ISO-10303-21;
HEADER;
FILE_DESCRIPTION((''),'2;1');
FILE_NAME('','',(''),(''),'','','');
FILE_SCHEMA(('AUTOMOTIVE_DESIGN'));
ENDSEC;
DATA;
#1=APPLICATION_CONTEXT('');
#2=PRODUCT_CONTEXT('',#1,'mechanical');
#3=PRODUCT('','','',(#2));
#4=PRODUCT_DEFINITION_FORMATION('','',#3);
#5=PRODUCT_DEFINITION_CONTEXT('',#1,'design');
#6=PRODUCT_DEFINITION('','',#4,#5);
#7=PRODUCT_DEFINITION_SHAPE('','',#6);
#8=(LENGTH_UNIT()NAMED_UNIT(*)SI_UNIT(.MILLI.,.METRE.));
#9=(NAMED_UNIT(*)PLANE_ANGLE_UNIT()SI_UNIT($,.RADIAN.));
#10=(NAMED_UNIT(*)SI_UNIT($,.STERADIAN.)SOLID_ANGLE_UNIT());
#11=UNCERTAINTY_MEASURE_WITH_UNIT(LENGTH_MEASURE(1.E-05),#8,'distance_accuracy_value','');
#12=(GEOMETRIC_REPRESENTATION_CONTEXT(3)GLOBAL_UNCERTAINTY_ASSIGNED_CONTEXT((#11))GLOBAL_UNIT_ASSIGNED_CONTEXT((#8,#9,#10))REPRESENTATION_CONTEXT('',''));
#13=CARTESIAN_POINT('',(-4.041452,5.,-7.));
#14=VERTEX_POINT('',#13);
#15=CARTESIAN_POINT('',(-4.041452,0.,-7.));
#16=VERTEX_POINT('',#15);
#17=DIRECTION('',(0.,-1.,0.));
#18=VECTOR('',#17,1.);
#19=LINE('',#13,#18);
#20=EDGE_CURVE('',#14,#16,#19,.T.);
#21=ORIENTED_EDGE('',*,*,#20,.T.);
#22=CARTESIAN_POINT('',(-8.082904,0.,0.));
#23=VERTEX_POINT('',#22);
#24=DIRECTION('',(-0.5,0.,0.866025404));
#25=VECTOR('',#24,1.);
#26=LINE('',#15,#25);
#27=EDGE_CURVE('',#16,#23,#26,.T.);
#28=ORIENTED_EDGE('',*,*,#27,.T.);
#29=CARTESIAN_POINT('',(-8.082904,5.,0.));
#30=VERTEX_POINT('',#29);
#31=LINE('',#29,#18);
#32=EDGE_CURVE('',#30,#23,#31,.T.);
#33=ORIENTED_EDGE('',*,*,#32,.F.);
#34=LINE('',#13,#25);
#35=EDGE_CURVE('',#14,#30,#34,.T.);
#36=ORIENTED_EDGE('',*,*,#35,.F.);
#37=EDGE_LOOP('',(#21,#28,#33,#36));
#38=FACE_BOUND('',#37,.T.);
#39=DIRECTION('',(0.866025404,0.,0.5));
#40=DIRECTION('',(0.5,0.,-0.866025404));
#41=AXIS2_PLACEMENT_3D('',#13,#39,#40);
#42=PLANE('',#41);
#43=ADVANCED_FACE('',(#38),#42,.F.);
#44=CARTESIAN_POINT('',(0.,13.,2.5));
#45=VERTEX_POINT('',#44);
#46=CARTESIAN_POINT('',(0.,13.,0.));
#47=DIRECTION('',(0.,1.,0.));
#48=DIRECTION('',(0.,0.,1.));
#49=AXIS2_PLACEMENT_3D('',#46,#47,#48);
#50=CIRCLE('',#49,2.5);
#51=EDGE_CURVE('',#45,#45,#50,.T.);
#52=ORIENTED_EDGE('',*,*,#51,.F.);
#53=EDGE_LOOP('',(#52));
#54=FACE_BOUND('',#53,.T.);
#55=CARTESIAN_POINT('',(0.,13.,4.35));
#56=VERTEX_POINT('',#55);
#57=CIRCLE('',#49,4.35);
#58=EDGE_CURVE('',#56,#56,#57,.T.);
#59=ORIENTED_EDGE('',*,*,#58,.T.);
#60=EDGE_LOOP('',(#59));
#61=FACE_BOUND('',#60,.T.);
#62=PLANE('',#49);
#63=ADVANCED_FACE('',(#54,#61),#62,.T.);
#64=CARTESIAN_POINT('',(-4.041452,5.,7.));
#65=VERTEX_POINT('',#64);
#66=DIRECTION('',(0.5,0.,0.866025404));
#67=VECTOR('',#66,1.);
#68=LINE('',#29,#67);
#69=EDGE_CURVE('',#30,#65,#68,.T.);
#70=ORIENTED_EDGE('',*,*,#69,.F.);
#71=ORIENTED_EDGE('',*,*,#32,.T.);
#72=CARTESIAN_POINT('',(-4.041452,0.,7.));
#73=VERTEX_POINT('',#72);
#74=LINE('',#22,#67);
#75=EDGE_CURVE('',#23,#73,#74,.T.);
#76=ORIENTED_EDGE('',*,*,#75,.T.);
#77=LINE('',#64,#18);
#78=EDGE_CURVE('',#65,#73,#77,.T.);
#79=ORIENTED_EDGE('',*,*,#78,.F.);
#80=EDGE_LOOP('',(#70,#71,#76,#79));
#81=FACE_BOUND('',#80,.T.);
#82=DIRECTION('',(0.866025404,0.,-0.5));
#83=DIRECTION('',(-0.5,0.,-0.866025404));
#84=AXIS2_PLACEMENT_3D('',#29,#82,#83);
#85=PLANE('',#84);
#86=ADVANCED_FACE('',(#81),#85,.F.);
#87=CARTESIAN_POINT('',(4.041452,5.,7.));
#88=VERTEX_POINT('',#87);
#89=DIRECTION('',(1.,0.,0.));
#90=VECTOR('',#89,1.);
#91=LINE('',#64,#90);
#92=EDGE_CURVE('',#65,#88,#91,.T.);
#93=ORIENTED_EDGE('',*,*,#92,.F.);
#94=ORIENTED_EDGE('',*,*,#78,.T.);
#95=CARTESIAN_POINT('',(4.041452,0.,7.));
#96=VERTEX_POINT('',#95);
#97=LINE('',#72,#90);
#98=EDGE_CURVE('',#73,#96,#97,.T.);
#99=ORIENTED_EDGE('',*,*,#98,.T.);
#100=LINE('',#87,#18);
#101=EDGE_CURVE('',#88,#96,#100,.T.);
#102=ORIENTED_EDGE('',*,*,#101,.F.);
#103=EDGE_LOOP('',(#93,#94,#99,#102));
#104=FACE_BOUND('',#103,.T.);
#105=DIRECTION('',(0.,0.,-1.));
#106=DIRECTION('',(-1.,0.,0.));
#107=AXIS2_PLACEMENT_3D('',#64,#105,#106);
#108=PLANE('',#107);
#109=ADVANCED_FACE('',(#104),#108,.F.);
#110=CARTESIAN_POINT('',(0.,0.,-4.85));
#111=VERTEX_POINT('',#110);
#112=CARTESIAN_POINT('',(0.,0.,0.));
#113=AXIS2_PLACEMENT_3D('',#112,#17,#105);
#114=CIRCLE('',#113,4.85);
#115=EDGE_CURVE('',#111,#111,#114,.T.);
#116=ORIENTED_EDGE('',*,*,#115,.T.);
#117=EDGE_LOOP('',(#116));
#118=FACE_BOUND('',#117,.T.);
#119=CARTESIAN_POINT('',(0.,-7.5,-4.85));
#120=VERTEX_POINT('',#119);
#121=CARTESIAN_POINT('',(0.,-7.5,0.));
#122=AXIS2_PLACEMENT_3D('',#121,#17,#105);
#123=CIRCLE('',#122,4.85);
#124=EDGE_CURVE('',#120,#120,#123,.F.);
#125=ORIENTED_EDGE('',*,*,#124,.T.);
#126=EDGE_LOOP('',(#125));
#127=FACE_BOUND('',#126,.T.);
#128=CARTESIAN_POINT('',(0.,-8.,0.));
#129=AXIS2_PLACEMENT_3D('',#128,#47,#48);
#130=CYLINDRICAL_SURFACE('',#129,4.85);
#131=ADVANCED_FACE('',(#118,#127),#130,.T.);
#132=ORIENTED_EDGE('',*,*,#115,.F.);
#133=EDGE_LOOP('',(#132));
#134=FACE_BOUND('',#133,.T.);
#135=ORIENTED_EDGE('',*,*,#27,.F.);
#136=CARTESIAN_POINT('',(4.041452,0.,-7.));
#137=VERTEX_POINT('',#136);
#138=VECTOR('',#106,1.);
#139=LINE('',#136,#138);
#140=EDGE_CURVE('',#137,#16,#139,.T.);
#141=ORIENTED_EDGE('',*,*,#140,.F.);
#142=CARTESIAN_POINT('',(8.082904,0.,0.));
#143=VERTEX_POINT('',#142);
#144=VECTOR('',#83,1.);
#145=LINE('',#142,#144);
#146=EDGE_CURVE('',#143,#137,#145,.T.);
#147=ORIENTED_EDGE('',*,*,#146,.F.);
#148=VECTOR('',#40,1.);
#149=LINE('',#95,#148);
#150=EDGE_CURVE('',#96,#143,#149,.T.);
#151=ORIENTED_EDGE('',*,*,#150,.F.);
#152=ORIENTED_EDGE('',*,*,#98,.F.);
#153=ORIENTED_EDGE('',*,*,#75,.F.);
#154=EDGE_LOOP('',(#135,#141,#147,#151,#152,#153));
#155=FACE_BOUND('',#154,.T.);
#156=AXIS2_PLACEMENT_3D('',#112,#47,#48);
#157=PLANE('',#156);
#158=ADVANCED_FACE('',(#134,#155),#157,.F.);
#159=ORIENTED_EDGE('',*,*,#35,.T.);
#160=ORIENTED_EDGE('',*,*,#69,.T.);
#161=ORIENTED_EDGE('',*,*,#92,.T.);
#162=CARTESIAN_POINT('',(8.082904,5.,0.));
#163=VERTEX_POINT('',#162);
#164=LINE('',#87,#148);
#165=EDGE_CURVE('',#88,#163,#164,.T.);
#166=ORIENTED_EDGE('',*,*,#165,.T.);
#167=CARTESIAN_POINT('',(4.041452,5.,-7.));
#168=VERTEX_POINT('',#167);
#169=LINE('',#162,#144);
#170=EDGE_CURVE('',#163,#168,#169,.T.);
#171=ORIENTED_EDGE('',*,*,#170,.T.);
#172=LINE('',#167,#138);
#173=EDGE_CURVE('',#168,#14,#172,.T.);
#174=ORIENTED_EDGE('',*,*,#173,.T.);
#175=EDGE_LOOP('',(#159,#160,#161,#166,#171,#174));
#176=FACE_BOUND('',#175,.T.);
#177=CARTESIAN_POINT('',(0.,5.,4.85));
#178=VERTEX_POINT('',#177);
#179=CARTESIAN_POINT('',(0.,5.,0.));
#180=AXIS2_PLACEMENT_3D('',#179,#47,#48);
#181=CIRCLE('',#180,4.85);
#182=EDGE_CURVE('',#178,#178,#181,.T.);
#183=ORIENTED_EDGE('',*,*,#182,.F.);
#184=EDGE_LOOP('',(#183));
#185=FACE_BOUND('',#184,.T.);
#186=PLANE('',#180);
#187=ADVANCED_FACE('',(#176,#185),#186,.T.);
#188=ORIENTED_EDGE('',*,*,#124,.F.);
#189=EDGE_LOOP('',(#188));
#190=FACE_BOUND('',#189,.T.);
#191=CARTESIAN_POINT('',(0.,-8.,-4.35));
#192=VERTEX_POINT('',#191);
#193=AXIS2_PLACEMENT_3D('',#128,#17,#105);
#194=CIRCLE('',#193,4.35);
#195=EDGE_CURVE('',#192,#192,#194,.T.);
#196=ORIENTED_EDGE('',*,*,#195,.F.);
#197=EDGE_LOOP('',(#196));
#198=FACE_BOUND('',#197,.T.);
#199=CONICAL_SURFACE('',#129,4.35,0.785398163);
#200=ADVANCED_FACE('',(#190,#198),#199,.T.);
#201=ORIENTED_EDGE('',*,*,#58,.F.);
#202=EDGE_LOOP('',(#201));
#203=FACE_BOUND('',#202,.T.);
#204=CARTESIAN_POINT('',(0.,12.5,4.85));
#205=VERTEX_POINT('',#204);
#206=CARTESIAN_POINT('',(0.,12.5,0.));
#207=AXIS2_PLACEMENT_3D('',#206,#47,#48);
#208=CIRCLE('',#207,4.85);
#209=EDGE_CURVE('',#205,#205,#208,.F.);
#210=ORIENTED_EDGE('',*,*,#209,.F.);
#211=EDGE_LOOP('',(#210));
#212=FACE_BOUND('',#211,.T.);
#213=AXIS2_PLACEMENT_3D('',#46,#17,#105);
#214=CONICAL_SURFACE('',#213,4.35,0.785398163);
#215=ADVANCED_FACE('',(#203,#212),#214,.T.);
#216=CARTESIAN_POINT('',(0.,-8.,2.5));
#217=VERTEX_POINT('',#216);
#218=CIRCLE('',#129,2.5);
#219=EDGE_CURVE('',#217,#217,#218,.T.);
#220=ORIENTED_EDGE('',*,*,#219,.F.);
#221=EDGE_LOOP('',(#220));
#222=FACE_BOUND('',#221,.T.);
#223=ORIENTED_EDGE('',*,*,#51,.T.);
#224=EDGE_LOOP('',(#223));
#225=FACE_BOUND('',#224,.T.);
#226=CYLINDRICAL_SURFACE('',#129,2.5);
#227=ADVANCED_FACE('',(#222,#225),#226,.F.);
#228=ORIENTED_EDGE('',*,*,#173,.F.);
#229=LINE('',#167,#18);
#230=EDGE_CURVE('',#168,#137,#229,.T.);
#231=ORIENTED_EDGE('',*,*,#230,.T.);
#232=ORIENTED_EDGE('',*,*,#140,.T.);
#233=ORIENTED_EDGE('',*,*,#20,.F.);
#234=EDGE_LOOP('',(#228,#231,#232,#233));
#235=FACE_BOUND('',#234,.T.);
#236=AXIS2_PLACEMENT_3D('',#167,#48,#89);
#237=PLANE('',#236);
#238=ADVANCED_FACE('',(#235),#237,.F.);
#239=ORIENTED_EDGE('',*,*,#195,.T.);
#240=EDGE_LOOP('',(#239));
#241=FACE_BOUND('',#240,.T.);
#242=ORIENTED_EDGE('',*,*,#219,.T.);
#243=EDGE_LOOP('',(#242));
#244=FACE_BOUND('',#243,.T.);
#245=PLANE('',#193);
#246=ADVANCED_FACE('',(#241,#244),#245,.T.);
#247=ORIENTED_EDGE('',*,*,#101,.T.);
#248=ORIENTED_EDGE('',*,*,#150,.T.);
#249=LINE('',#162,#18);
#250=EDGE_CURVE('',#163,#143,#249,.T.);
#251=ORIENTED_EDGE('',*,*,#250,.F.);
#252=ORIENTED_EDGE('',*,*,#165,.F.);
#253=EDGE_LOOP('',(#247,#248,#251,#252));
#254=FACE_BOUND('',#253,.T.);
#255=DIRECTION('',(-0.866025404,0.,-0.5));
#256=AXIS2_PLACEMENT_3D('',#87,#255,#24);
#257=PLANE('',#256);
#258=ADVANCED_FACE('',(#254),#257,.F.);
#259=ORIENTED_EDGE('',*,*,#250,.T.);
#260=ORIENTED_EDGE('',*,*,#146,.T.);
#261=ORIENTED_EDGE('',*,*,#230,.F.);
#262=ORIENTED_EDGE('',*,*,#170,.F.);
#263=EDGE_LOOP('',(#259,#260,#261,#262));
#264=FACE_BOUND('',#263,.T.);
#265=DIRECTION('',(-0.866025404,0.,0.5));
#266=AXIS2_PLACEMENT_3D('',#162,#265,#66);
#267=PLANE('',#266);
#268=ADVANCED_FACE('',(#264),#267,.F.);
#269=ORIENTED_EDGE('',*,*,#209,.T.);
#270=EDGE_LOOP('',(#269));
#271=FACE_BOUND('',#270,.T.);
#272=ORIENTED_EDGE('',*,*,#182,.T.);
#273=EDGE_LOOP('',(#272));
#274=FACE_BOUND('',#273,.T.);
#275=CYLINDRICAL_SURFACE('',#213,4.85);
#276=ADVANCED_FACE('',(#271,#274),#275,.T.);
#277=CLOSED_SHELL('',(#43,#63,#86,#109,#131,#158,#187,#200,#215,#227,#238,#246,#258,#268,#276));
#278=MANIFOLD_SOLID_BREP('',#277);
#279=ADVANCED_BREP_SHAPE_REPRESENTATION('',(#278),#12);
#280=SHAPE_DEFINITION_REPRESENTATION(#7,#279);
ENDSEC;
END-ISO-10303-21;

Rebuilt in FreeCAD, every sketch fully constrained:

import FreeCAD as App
import Part
import Sketcher
from FreeCAD import Vector
Q = App.Units.Quantity


def edges_at(feature, points):
    """Names of the edges that pass closest to the given points."""
    edges = feature.Shape.Edges
    near = lambda p: min(range(len(edges)), key=lambda i: edges[i].distToShape(Part.Vertex(*p))[0])
    return sorted({f"Edge{near(p) + 1}" for p in points})


def add_polygon(sketch, points):
    """Adds a closed chain of lines whose ends are joined by coincident constraints."""
    first, n = sketch.GeometryCount, len(points)
    for a, b in zip(points, points[1:] + points[:1]):
        sketch.addGeometry(Part.LineSegment(App.Vector(*a, 0), App.Vector(*b, 0)), False)
    for i in range(n):
        sketch.addConstraint(Sketcher.Constraint("Coincident", first + i, 2, first + (i + 1) % n, 1))

doc = App.newDocument("Part")
body = doc.addObject("PartDesign::Body", "Body")

# Sketch on XZ plane
sketch1 = body.newObject("Sketcher::SketchObject", "Sketch")
sketch1.AttachmentSupport = (doc.getObject("XZ_Plane"), [""])
sketch1.MapMode = "FlatFace"
add_polygon(sketch1, [(4, 7), (8, 0), (4, -7), (-4, -7), (-8, 0), (-4, 7)])  # lines 0-5
sketch1.addConstraint(Sketcher.Constraint("Horizontal", 2))
sketch1.addConstraint(Sketcher.Constraint("Horizontal", 5))
sketch1.addConstraint(Sketcher.Constraint("Symmetric", 0, 2, 3, 2, -1, 1))
sketch1.addConstraint(Sketcher.Constraint("Symmetric", 1, 2, 4, 2, -1, 1))
sketch1.addConstraint(Sketcher.Constraint("PointOnObject", 0, 2, -1))
sketch1.addConstraint(Sketcher.Constraint("Parallel", 0, 3))
sketch1.addConstraint(Sketcher.Constraint("Vertical", 2, 2, 4, 2))
sketch1.addConstraint(Sketcher.Constraint("Angle", 0, Q("-60 deg")))
sketch1.addConstraint(Sketcher.Constraint("DistanceY", 1, 2, -1, 1, Q("7 mm")))
sketch1.addConstraint(Sketcher.Constraint("DistanceX", 2, 2, 2, 1, Q("8.082904 mm")))
pad1 = body.newObject("PartDesign::Pad", "Pad")
pad1.Profile = sketch1
pad1.Length = 5
pad1.Reversed = True

# Sketch on XZ plane
sketch2 = body.newObject("Sketcher::SketchObject", "Sketch001")
sketch2.AttachmentSupport = (doc.getObject("XZ_Plane"), [""])
sketch2.MapMode = "FlatFace"
sketch2.AttachmentOffset = App.Placement(Vector(0, 0, -5), App.Rotation())
sketch2.addGeometry(Part.Circle(Vector(0, 0, 0), Vector(0, 0, 1), 4.8), False)
sketch2.addConstraint(Sketcher.Constraint("Coincident", 0, 3, -1, 1))
sketch2.addConstraint(Sketcher.Constraint("Diameter", 0, Q("9.7 mm")))
pad2 = body.newObject("PartDesign::Pad", "Pad001")
pad2.Profile = sketch2
pad2.Length = 8
pad2.Reversed = True

# Sketch on XZ plane
sketch3 = body.newObject("Sketcher::SketchObject", "Sketch002")
sketch3.AttachmentSupport = (doc.getObject("XZ_Plane"), [""])
sketch3.MapMode = "FlatFace"
sketch3.addGeometry(Part.Circle(Vector(0, 0, 0), Vector(0, 0, 1), 4.8), False)
sketch3.addConstraint(Sketcher.Constraint("Coincident", 0, 3, -1, 1))
sketch3.addConstraint(Sketcher.Constraint("Diameter", 0, Q("9.7 mm")))
pad3 = body.newObject("PartDesign::Pad", "Pad002")
pad3.Profile = sketch3
pad3.Length = 8
doc.recompute()

chamfer = body.newObject("PartDesign::Chamfer", "Chamfer")
chamfer.Base = (pad3, edges_at(pad3, [(-4.85, 13, 0), (-4.85, -8, 0)]))
chamfer.Size = 0.5

# Sketch on XZ plane
sketch4 = body.newObject("Sketcher::SketchObject", "Sketch003")
sketch4.AttachmentSupport = (doc.getObject("XZ_Plane"), [""])
sketch4.MapMode = "FlatFace"
sketch4.AttachmentOffset = App.Placement(Vector(0, 0, -13), App.Rotation())
sketch4.addGeometry(Part.Circle(Vector(0, 0, 0), Vector(0, 0, 1), 2.5), False)
sketch4.addConstraint(Sketcher.Constraint("Coincident", 0, 3, -1, 1))
sketch4.addConstraint(Sketcher.Constraint("Diameter", 0, Q("5 mm")))
pocket1 = body.newObject("PartDesign::Pocket", "Pocket")
pocket1.Profile = sketch4
pocket1.Type = "ThroughAll"
pocket1.Reversed = True

doc.recompute()
